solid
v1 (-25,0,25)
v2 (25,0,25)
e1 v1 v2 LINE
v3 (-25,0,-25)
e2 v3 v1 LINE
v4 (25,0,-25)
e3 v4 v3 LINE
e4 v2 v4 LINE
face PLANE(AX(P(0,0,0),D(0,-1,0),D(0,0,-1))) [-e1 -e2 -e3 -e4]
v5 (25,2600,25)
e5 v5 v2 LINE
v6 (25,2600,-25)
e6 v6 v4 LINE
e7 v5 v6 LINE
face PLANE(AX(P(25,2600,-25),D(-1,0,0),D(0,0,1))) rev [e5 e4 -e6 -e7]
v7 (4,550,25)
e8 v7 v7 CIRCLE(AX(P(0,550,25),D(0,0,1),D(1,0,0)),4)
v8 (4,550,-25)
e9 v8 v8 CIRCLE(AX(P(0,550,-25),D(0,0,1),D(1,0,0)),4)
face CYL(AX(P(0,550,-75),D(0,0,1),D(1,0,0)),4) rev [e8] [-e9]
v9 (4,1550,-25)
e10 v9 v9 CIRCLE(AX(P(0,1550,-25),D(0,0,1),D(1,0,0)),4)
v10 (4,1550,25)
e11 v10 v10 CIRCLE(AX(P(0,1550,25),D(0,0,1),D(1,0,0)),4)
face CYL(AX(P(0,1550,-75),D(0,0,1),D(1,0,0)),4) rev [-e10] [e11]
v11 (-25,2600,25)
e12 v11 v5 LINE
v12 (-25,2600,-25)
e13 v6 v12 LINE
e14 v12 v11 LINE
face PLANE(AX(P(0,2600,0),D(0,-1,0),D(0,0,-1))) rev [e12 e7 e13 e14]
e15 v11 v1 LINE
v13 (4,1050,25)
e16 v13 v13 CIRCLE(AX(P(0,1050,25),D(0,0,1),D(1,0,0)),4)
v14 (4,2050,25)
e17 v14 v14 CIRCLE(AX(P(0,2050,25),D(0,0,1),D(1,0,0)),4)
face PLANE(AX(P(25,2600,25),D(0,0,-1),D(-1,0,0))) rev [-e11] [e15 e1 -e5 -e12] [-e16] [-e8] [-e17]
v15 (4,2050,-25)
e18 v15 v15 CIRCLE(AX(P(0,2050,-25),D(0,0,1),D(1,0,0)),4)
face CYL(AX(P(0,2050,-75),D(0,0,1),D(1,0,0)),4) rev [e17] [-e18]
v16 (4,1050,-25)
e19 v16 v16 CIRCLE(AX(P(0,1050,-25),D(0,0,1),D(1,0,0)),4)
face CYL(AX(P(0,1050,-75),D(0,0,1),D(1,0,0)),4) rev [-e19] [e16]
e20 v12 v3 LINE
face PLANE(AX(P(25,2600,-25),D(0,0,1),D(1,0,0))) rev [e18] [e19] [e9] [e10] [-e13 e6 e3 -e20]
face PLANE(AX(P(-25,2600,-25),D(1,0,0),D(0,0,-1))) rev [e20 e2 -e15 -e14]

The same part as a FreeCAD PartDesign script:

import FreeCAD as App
import Part
import Sketcher


def add_polygon(sketch, points):
    """Adds a closed chain of lines whose ends are joined by coincident constraints."""
    first, n = sketch.GeometryCount, len(points)
    for a, b in zip(points, points[1:] + points[:1]):
        sketch.addGeometry(Part.LineSegment(App.Vector(*a, 0), App.Vector(*b, 0)), False)
    for i in range(n):
        sketch.addConstraint(Sketcher.Constraint("Coincident", first + i, 2, first + (i + 1) % n, 1))

doc = App.newDocument("Part")
body = doc.addObject("PartDesign::Body", "Body")

# Sketch on XZ plane
sketch1 = body.newObject("Sketcher::SketchObject", "Sketch")
sketch1.AttachmentSupport = (doc.getObject("XZ_Plane"), [""])
sketch1.MapMode = "FlatFace"
add_polygon(sketch1, [(-25, -25), (-25, 25), (25, 25), (25, -25)])  # lines 0-3
sketch1.addConstraint([
    Sketcher.Constraint("Vertical", 0),
    Sketcher.Constraint("Horizontal", 1),
    Sketcher.Constraint("Vertical", 2),
    Sketcher.Constraint("Horizontal", 3),
    Sketcher.Constraint("Symmetric", 0, 2, 2, 2, -1, 1),
    Sketcher.Constraint("Equal", 3, 0),
    Sketcher.Constraint("DistanceX", 1, 1, 1, 2, 50.0),
])
pad1 = body.newObject("PartDesign::Pad", "Pad")
pad1.Profile = sketch1
pad1.Length = 2600
pad1.Reversed = True

# Sketch on XY plane
sketch2 = body.newObject("Sketcher::SketchObject", "Sketch001")
sketch2.AttachmentSupport = (doc.getObject("XY_Plane"), [""])
sketch2.MapMode = "FlatFace"
sketch2.AttachmentOffset = App.Placement(App.Vector(0, 0, 25), App.Rotation())
sketch2.addGeometry([
    Part.Circle(App.Vector(0, 2050, 0), App.Vector(0, 0, 1), 4),
    Part.Circle(App.Vector(0, 1550, 0), App.Vector(0, 0, 1), 4),
    Part.Circle(App.Vector(0, 1050, 0), App.Vector(0, 0, 1), 4),
    Part.Circle(App.Vector(0, 550, 0), App.Vector(0, 0, 1), 4),
], False)
sketch2.addConstraint([
    Sketcher.Constraint("Equal", 0, 1),
    Sketcher.Constraint("Equal", 1, 2),
    Sketcher.Constraint("Equal", 2, 3),
    Sketcher.Constraint("PointOnObject", 0, 3, -2),
    Sketcher.Constraint("PointOnObject", 1, 3, -2),
    Sketcher.Constraint("PointOnObject", 2, 3, -2),
    Sketcher.Constraint("PointOnObject", 3, 3, -2),
    Sketcher.Constraint("Diameter", 0, 8.0),
    Sketcher.Constraint("DistanceY", -1, 1, 0, 3, 2050.0),
    Sketcher.Constraint("DistanceY", -1, 1, 1, 3, 1550.0),
    Sketcher.Constraint("DistanceY", -1, 1, 2, 3, 1050.0),
    Sketcher.Constraint("DistanceY", -1, 1, 3, 3, 550.0),
])
pocket1 = body.newObject("PartDesign::Pocket", "Pocket")
pocket1.Profile = sketch2
pocket1.Length = 100

doc.recompute()
